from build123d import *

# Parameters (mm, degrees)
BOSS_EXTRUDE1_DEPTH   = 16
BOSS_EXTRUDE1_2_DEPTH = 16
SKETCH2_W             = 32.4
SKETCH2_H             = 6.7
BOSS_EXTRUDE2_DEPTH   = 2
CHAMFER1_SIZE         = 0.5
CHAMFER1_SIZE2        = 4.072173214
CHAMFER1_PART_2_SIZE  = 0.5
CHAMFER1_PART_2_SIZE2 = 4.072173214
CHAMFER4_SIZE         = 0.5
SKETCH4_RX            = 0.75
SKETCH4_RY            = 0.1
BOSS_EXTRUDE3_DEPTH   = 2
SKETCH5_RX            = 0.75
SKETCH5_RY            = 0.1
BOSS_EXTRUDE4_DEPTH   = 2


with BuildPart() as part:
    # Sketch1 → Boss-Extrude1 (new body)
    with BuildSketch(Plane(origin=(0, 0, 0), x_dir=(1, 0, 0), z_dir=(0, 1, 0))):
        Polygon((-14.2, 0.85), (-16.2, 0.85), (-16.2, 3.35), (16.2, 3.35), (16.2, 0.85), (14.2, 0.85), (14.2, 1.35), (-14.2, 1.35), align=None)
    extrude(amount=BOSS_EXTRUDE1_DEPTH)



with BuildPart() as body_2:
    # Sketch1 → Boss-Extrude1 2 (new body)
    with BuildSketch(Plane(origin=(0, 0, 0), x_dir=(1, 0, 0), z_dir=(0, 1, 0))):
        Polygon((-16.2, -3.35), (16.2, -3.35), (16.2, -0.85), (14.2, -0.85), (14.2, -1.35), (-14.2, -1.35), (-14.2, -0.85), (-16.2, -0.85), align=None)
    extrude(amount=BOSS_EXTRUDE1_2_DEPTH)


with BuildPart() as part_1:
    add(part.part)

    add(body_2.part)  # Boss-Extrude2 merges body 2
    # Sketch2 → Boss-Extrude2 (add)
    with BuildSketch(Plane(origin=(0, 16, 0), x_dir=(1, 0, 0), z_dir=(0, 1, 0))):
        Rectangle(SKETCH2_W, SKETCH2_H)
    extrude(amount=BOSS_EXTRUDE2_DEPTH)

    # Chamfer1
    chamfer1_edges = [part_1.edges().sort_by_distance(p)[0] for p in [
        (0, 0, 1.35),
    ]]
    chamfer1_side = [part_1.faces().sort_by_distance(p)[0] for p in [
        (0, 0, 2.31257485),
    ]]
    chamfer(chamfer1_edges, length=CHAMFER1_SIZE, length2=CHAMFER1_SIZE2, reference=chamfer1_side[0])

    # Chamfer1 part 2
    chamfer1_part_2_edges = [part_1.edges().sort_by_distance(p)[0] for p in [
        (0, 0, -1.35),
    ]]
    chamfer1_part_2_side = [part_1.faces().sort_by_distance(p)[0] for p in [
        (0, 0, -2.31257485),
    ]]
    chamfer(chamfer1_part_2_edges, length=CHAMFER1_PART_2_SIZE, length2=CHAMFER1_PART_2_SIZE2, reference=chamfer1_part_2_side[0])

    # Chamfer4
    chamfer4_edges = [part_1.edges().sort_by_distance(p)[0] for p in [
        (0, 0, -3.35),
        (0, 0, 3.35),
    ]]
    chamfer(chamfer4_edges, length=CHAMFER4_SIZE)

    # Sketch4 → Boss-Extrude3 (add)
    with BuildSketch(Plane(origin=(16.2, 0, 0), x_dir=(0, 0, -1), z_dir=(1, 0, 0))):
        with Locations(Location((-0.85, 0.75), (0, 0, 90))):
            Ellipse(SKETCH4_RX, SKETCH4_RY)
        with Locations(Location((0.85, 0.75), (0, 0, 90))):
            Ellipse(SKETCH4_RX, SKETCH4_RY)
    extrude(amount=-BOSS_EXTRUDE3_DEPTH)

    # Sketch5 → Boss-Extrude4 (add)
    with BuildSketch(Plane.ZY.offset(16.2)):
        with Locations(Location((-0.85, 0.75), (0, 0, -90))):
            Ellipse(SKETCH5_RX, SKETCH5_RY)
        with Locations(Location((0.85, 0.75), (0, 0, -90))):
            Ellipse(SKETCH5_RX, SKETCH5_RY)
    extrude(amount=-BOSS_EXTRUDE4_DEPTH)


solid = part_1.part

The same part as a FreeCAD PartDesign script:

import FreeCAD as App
import Part
import Sketcher


def edges_at(feature, points):
    """Names of the edges that pass closest to the given points."""
    edges = feature.Shape.Edges
    near = lambda p: min(range(len(edges)), key=lambda i: edges[i].distToShape(Part.Vertex(*p))[0])
    return sorted({f"Edge{near(p) + 1}" for p in points})

doc = App.newDocument("Part")
params = doc.addObject("Spreadsheet::Sheet", "Params")
for row, (alias, value) in enumerate([
    ("sketch1_width", "2 mm"),
    ("sketch1_width2", "28.4 mm"),
    ("sketch1_height", "0.5 mm"),
    ("sketch1_height2", "2.5 mm"),
    ("pad1_length", "16 mm"),
    ("sketch2_width", "2 mm"),
    ("sketch2_width2", "32.4 mm"),
    ("sketch2_height", "2.5 mm"),
    ("sketch2_height2", "0.5 mm"),
    ("pad2_length", "16 mm"),
    ("sketch3_width", "32.4 mm"),
    ("sketch3_height", "6.7 mm"),
    ("pad3_length", "2 mm"),
    ("chamfer_size", "0.5 mm"),
    ("chamfer_size2", "4.072173 mm"),
    ("chamfer2_size", "0.5 mm"),
    ("chamfer2_size2", "4.072173 mm"),
    ("chamfer3_size", "0.5 mm"),
    ("pad4_length", "2 mm"),
    ("pad5_length", "2 mm"),
], start=1):
    params.set(f"A{row}", alias)
    params.set(f"B{row}", "=" + value)
    params.setAlias(f"B{row}", alias)

body = doc.addObject("PartDesign::Body", "Body")

sketch1 = body.newObject("Sketcher::SketchObject", "Sketch")
sketch1.AttachmentSupport = (doc.getObject("XZ_Plane"), [""])
sketch1.MapMode = "FlatFace"
sketch1.addGeometry([
    Part.LineSegment(App.Vector(-16.2, -0.85, 0), App.Vector(-14.2, -0.85, 0)),
    Part.LineSegment(App.Vector(-14.2, -0.85, 0), App.Vector(-14.2, -1.35, 0)),
    Part.LineSegment(App.Vector(-14.2, -1.35, 0), App.Vector(14.2, -1.35, 0)),
    Part.LineSegment(App.Vector(14.2, -1.35, 0), App.Vector(14.2, -0.85, 0)),
    Part.LineSegment(App.Vector(14.2, -0.85, 0), App.Vector(16.2, -0.85, 0)),
    Part.LineSegment(App.Vector(16.2, -0.85, 0), App.Vector(16.2, -3.35, 0)),
    Part.LineSegment(App.Vector(16.2, -3.35, 0), App.Vector(-16.2, -3.35, 0)),
    Part.LineSegment(App.Vector(-16.2, -3.35, 0), App.Vector(-16.2, -0.85, 0)),
], False)
sketch1.addConstraint([
    Sketcher.Constraint("Coincident", 0, 2, 1, 1),
    Sketcher.Constraint("Coincident", 1, 2, 2, 1),
    Sketcher.Constraint("Coincident", 2, 2, 3, 1),
    Sketcher.Constraint("Coincident", 3, 2, 4, 1),
    Sketcher.Constraint("Coincident", 4, 2, 5, 1),
    Sketcher.Constraint("Coincident", 5, 2, 6, 1),
    Sketcher.Constraint("Coincident", 6, 2, 7, 1),
    Sketcher.Constraint("Coincident", 7, 2, 0, 1),
    Sketcher.Constraint("Horizontal", 0),
    Sketcher.Constraint("Vertical", 1),
    Sketcher.Constraint("Horizontal", 2),
    Sketcher.Constraint("Vertical", 3),
    Sketcher.Constraint("Horizontal", 4),
    Sketcher.Constraint("Vertical", 5),
    Sketcher.Constraint("Horizontal", 6),
    Sketcher.Constraint("Vertical", 7),
    Sketcher.Constraint("Symmetric", 0, 2, 3, 2, -2),
    Sketcher.Constraint("Equal", 0, 4),
    Sketcher.Constraint("DistanceX", 0, 1, 0, 2, 2.0),
    Sketcher.Constraint("DistanceX", 2, 1, 2, 2, 28.4),
    Sketcher.Constraint("DistanceY", 1, 2, 1, 1, 0.5),
    Sketcher.Constraint("DistanceY", 5, 2, 5, 1, 2.5),
    Sketcher.Constraint("DistanceY", 0, 2, -1, 1, 0.85),
])
sketch1.setExpression("Constraints[18]", "Params.sketch1_width")
sketch1.setExpression("Constraints[19]", "Params.sketch1_width2")
sketch1.setExpression("Constraints[20]", "Params.sketch1_height")
sketch1.setExpression("Constraints[21]", "Params.sketch1_height2")
pad1 = body.newObject("PartDesign::Pad", "Pad")
pad1.Profile = sketch1
pad1.setExpression("Length", "Params.pad1_length")
pad1.Reversed = True
body2 = doc.addObject("PartDesign::Body", "Body001")

sketch2 = body2.newObject("Sketcher::SketchObject", "Sketch001")
sketch2.AttachmentSupport = (doc.getObject("XZ_Plane001"), [""])
sketch2.MapMode = "FlatFace"
sketch2.addGeometry([
    Part.LineSegment(App.Vector(-16.2, 3.35, 0), App.Vector(16.2, 3.35, 0)),
    Part.LineSegment(App.Vector(16.2, 3.35, 0), App.Vector(16.2, 0.85, 0)),
    Part.LineSegment(App.Vector(16.2, 0.85, 0), App.Vector(14.2, 0.85, 0)),
    Part.LineSegment(App.Vector(14.2, 0.85, 0), App.Vector(14.2, 1.35, 0)),
    Part.LineSegment(App.Vector(14.2, 1.35, 0), App.Vector(-14.2, 1.35, 0)),
    Part.LineSegment(App.Vector(-14.2, 1.35, 0), App.Vector(-14.2, 0.85, 0)),
    Part.LineSegment(App.Vector(-14.2, 0.85, 0), App.Vector(-16.2, 0.85, 0)),
    Part.LineSegment(App.Vector(-16.2, 0.85, 0), App.Vector(-16.2, 3.35, 0)),
], False)
sketch2.addConstraint([
    Sketcher.Constraint("Coincident", 0, 2, 1, 1),
    Sketcher.Constraint("Coincident", 1, 2, 2, 1),
    Sketcher.Constraint("Coincident", 2, 2, 3, 1),
    Sketcher.Constraint("Coincident", 3, 2, 4, 1),
    Sketcher.Constraint("Coincident", 4, 2, 5, 1),
    Sketcher.Constraint("Coincident", 5, 2, 6, 1),
    Sketcher.Constraint("Coincident", 6, 2, 7, 1),
    Sketcher.Constraint("Coincident", 7, 2, 0, 1),
    Sketcher.Constraint("Horizontal", 0),
    Sketcher.Constraint("Vertical", 1),
    Sketcher.Constraint("Horizontal", 2),
    Sketcher.Constraint("Vertical", 3),
    Sketcher.Constraint("Horizontal", 4),
    Sketcher.Constraint("Vertical", 5),
    Sketcher.Constraint("Horizontal", 6),
    Sketcher.Constraint("Vertical", 7),
    Sketcher.Constraint("Symmetric", 2, 2, 5, 2, -2),
    Sketcher.Constraint("Equal", 2, 6),
    Sketcher.Constraint("DistanceX", 2, 2, 2, 1, 2.0),
    Sketcher.Constraint("DistanceX", 0, 1, 0, 2, 32.4),
    Sketcher.Constraint("DistanceY", 1, 2, 1, 1, 2.5),
    Sketcher.Constraint("DistanceY", 3, 1, 3, 2, 0.5),
    Sketcher.Constraint("DistanceY", -1, 1, 0, 2, 3.35),
])
sketch2.setExpression("Constraints[18]", "Params.sketch2_width")
sketch2.setExpression("Constraints[19]", "Params.sketch2_width2")
sketch2.setExpression("Constraints[20]", "Params.sketch2_height")
sketch2.setExpression("Constraints[21]", "Params.sketch2_height2")
pad2 = body2.newObject("PartDesign::Pad", "Pad001")
pad2.Profile = sketch2
pad2.setExpression("Length", "Params.pad2_length")
pad2.Reversed = True
body.AllowCompound = True
doc.recompute()

boolean = body.newObject("PartDesign::Boolean", "Boolean")
boolean.Type = "Fuse"
boolean.addObjects([body2])

sketch3 = body.newObject("Sketcher::SketchObject", "Sketch002")
sketch3.AttachmentSupport = (doc.getObject("XZ_Plane"), [""])
sketch3.MapMode = "FlatFace"
sketch3.AttachmentOffset = App.Placement(App.Vector(0, 0, -16), App.Rotation())
sketch3.addGeometry([
    Part.LineSegment(App.Vector(-16.2, -3.35, 0), App.Vector(-16.2, 3.35, 0)),
    Part.LineSegment(App.Vector(-16.2, 3.35, 0), App.Vector(16.2, 3.35, 0)),
    Part.LineSegment(App.Vector(16.2, 3.35, 0), App.Vector(16.2, -3.35, 0)),
    Part.LineSegment(App.Vector(16.2, -3.35, 0), App.Vector(-16.2, -3.35, 0)),
], False)
sketch3.addConstraint([
    Sketcher.Constraint("Coincident", 0, 2, 1, 1),
    Sketcher.Constraint("Coincident", 1, 2, 2, 1),
    Sketcher.Constraint("Coincident", 2, 2, 3, 1),
    Sketcher.Constraint("Coincident", 3, 2, 0, 1),
    Sketcher.Constraint("Vertical", 0),
    Sketcher.Constraint("Horizontal", 1),
    Sketcher.Constraint("Vertical", 2),
    Sketcher.Constraint("Horizontal", 3),
    Sketcher.Constraint("Symmetric", 0, 2, 2, 2, -1, 1),
    Sketcher.Constraint("DistanceX", 1, 1, 1, 2, 32.4),
    Sketcher.Constraint("DistanceY", 0, 1, 0, 2, 6.7),
])
sketch3.setExpression("Constraints[9]", "Params.sketch3_width")
sketch3.setExpression("Constraints[10]", "Params.sketch3_height")
pad3 = body.newObject("PartDesign::Pad", "Pad002")
pad3.Profile = sketch3
pad3.setExpression("Length", "Params.pad3_length")
pad3.Reversed = True
doc.recompute()

chamfer = body.newObject("PartDesign::Chamfer", "Chamfer")
chamfer.Base = (pad3, edges_at(pad3, [(0, 0, 1.35)]))
chamfer.ChamferType = "Two distances"
chamfer.setExpression("Size", "Params.chamfer_size")
chamfer.setExpression("Size2", "Params.chamfer_size2")
chamfer.FlipDirection = True
doc.recompute()

chamfer2 = body.newObject("PartDesign::Chamfer", "Chamfer001")
chamfer2.Base = (chamfer, edges_at(chamfer, [(0, 0, -1.35)]))
chamfer2.ChamferType = "Two distances"
chamfer2.setExpression("Size", "Params.chamfer2_size")
chamfer2.setExpression("Size2", "Params.chamfer2_size2")
chamfer2.FlipDirection = True
doc.recompute()

chamfer3 = body.newObject("PartDesign::Chamfer", "Chamfer002")
chamfer3.Base = (chamfer2, edges_at(chamfer2, [(0, 0, -3.35), (0, 0, 3.35)]))
chamfer3.setExpression("Size", "Params.chamfer3_size")

sketch4 = body.newObject("Sketcher::SketchObject", "Sketch003")
sketch4.AttachmentSupport = (doc.getObject("YZ_Plane"), [""])
sketch4.MapMode = "FlatFace"
sketch4.AttachmentOffset = App.Placement(App.Vector(0, 0, 16.2), App.Rotation())
sketch4.addGeometry([
    Part.Ellipse(App.Vector(1.5, 0.85, 0), App.Vector(0.75, 0.95, 0), App.Vector(0.75, 0.85, 0)),
    Part.Ellipse(App.Vector(1.5, -0.85, 0), App.Vector(0.75, -0.75, 0), App.Vector(0.75, -0.85, 0)),
], False)
sketch4.addConstraint([
    Sketcher.Constraint("Block", 0),
    Sketcher.Constraint("Block", 1),
])
pad4 = body.newObject("PartDesign::Pad", "Pad003")
pad4.Profile = sketch4
pad4.setExpression("Length", "Params.pad4_length")
pad4.Reversed = True

sketch5 = body.newObject("Sketcher::SketchObject", "Sketch004")
sketch5.AttachmentSupport = (doc.getObject("YZ_Plane"), [""])
sketch5.MapMode = "FlatFace"
sketch5.AttachmentOffset = App.Placement(App.Vector(0, 0, -16.2), App.Rotation())
sketch5.addGeometry([
    Part.Ellipse(App.Vector(0, -0.85, 0), App.Vector(0.75, -0.95, 0), App.Vector(0.75, -0.85, 0)),
    Part.Ellipse(App.Vector(0, 0.85, 0), App.Vector(0.75, 0.75, 0), App.Vector(0.75, 0.85, 0)),
], False)
sketch5.addConstraint([
    Sketcher.Constraint("Block", 0),
    Sketcher.Constraint("Block", 1),
])
pad5 = body.newObject("PartDesign::Pad", "Pad004")
pad5.Profile = sketch5
pad5.setExpression("Length", "Params.pad5_length")

doc.recompute()
